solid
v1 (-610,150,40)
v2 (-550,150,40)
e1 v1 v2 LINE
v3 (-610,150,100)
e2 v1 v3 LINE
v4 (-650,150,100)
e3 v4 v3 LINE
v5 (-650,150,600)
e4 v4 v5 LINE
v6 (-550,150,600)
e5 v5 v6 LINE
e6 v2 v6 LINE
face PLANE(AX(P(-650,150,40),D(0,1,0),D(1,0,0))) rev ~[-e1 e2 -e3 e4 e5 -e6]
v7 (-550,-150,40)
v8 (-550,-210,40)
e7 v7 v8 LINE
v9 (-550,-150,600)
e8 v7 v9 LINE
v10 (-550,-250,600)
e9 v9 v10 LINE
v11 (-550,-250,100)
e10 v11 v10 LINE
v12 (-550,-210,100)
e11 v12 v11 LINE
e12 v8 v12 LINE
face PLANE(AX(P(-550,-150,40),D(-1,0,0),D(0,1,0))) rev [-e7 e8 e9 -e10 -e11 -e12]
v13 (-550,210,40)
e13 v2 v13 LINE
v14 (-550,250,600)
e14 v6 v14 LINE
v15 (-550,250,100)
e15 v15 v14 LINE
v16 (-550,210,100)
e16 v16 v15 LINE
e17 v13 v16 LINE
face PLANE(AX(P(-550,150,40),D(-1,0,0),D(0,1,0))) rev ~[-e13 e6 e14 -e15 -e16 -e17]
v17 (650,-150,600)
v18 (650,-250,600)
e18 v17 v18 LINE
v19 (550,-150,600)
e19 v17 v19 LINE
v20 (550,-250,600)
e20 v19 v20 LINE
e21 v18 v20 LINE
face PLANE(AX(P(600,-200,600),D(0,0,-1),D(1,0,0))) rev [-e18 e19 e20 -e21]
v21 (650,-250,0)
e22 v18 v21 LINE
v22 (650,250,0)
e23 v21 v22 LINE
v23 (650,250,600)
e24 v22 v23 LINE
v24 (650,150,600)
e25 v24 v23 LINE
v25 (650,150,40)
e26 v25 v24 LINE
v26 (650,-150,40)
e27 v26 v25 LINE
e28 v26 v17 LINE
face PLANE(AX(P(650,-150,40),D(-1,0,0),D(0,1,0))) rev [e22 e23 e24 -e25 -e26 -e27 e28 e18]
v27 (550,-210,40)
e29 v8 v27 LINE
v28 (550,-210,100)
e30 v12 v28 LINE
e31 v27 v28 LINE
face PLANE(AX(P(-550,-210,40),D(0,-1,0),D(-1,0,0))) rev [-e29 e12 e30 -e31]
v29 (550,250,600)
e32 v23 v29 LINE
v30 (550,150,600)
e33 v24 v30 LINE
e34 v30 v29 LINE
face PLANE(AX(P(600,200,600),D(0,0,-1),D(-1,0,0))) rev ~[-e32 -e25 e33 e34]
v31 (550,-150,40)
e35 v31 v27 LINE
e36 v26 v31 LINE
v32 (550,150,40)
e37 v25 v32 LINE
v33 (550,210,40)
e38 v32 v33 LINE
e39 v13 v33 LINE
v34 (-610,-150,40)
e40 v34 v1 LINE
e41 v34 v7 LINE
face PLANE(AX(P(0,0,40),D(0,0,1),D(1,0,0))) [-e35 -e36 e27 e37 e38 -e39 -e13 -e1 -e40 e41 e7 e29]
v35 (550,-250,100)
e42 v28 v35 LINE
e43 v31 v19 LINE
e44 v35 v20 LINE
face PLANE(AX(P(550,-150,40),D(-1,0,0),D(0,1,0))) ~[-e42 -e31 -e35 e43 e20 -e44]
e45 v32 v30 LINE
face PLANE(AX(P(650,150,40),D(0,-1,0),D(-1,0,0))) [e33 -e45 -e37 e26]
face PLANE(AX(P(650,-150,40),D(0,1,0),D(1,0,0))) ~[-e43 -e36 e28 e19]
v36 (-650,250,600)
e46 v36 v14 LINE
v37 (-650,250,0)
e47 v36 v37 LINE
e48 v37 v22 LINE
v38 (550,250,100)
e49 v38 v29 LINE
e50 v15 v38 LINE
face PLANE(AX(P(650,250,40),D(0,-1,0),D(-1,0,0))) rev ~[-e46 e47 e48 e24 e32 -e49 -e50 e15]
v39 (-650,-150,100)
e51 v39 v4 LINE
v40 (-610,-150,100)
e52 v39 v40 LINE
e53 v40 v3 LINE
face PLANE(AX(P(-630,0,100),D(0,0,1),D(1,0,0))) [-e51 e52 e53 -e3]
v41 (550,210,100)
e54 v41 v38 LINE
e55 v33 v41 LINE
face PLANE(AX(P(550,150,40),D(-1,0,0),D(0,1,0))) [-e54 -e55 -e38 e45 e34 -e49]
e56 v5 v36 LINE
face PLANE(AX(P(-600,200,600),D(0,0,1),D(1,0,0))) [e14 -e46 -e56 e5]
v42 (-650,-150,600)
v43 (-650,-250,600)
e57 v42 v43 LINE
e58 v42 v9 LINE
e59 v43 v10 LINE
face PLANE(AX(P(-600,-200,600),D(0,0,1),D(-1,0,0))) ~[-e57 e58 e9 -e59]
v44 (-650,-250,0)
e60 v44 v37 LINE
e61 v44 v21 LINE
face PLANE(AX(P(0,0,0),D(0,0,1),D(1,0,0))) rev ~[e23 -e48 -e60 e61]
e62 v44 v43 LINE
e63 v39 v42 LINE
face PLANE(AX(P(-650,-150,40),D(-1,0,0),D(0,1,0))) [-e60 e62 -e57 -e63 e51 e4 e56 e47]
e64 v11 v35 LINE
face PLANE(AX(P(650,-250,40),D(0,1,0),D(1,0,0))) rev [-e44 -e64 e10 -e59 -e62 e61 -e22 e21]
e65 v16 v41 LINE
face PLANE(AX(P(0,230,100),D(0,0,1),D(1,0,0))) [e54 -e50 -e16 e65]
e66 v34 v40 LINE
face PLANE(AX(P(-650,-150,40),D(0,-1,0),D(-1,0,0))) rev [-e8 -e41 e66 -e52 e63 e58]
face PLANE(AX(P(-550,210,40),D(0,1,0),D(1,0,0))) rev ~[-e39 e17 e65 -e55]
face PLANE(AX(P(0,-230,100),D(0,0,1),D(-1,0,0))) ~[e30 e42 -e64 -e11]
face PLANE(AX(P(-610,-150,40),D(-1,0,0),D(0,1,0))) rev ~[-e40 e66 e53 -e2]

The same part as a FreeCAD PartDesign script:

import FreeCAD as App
import Part
import Sketcher

V = App.Vector
Q = App.Units.Quantity

doc = App.newDocument("Part")
body = doc.addObject("PartDesign::Body", "Body")

# Sketch on XY plane
sketch1 = doc.addObject("Sketcher::SketchObject", "Sketch")
body.addObject(sketch1)
sketch1.AttachmentSupport = (doc.XY_Plane, [""])
sketch1.MapMode = "FlatFace"
sketch1.addGeometry(Part.LineSegment(V(-650, 250, 0), V(-650, -250, 0)), False)
sketch1.addGeometry(Part.LineSegment(V(-650, -250, 0), V(650, -250, 0)), False)
sketch1.addGeometry(Part.LineSegment(V(650, -250, 0), V(650, 250, 0)), False)
sketch1.addGeometry(Part.LineSegment(V(650, 250, 0), V(-650, 250, 0)), False)
sketch1.addConstraint(Sketcher.Constraint("Coincident", 0, 2, 1, 1))
sketch1.addConstraint(Sketcher.Constraint("Coincident", 1, 2, 2, 1))
sketch1.addConstraint(Sketcher.Constraint("Coincident", 2, 2, 3, 1))
sketch1.addConstraint(Sketcher.Constraint("Coincident", 3, 2, 0, 1))
sketch1.addConstraint(Sketcher.Constraint("Vertical", 0))
sketch1.addConstraint(Sketcher.Constraint("Horizontal", 1))
sketch1.addConstraint(Sketcher.Constraint("Vertical", 2))
sketch1.addConstraint(Sketcher.Constraint("Horizontal", 3))
sketch1.addConstraint(Sketcher.Constraint("Symmetric", 0, 2, 2, 2, -1, 1))
sketch1.addConstraint(Sketcher.Constraint("DistanceX", 1, 1, 1, 2, Q("1300 mm")))
sketch1.addConstraint(Sketcher.Constraint("DistanceY", 0, 2, 0, 1, Q("500 mm")))
pad1 = doc.addObject("PartDesign::Pad", "Pad")
body.addObject(pad1)
pad1.Profile = sketch1
pad1.Length = 40

# Sketch on XY plane
sketch2 = doc.addObject("Sketcher::SketchObject", "Sketch001")
body.addObject(sketch2)
sketch2.AttachmentSupport = (doc.XY_Plane, [""])
sketch2.MapMode = "FlatFace"
sketch2.AttachmentOffset = App.Placement(V(0, 0, 40), App.Rotation())
sketch2.addGeometry(Part.LineSegment(V(-650, 250, 0), V(-650, 150, 0)), False)
sketch2.addGeometry(Part.LineSegment(V(-650, 150, 0), V(-550, 150, 0)), False)
sketch2.addGeometry(Part.LineSegment(V(-550, 150, 0), V(-550, 250, 0)), False)
sketch2.addGeometry(Part.LineSegment(V(-550, 250, 0), V(-650, 250, 0)), False)
sketch2.addConstraint(Sketcher.Constraint("Coincident", 0, 2, 1, 1))
sketch2.addConstraint(Sketcher.Constraint("Coincident", 1, 2, 2, 1))
sketch2.addConstraint(Sketcher.Constraint("Coincident", 2, 2, 3, 1))
sketch2.addConstraint(Sketcher.Constraint("Coincident", 3, 2, 0, 1))
sketch2.addConstraint(Sketcher.Constraint("Vertical", 0))
sketch2.addConstraint(Sketcher.Constraint("Horizontal", 1))
sketch2.addConstraint(Sketcher.Constraint("Vertical", 2))
sketch2.addConstraint(Sketcher.Constraint("Horizontal", 3))
sketch2.addConstraint(Sketcher.Constraint("Equal", 3, 0))
sketch2.addConstraint(Sketcher.Constraint("DistanceX", 1, 1, 1, 2, Q("100 mm")))
sketch2.addConstraint(Sketcher.Constraint("DistanceX", 0, 2, -1, 1, Q("650 mm")))
sketch2.addConstraint(Sketcher.Constraint("DistanceY", -1, 1, 0, 2, Q("150 mm")))
pad2 = doc.addObject("PartDesign::Pad", "Pad001")
body.addObject(pad2)
pad2.Profile = sketch2
pad2.Length = 560

# Sketch on XY plane
sketch3 = doc.addObject("Sketcher::SketchObject", "Sketch002")
body.addObject(sketch3)
sketch3.AttachmentSupport = (doc.XY_Plane, [""])
sketch3.MapMode = "FlatFace"
sketch3.AttachmentOffset = App.Placement(V(0, 0, 40), App.Rotation())
sketch3.addGeometry(Part.LineSegment(V(650, 250, 0), V(650, 150, 0)), False)
sketch3.addGeometry(Part.LineSegment(V(650, 150, 0), V(550, 150, 0)), False)
sketch3.addGeometry(Part.LineSegment(V(550, 150, 0), V(550, 250, 0)), False)
sketch3.addGeometry(Part.LineSegment(V(550, 250, 0), V(650, 250, 0)), False)
sketch3.addConstraint(Sketcher.Constraint("Coincident", 0, 2, 1, 1))
sketch3.addConstraint(Sketcher.Constraint("Coincident", 1, 2, 2, 1))
sketch3.addConstraint(Sketcher.Constraint("Coincident", 2, 2, 3, 1))
sketch3.addConstraint(Sketcher.Constraint("Coincident", 3, 2, 0, 1))
sketch3.addConstraint(Sketcher.Constraint("Vertical", 0))
sketch3.addConstraint(Sketcher.Constraint("Horizontal", 1))
sketch3.addConstraint(Sketcher.Constraint("Vertical", 2))
sketch3.addConstraint(Sketcher.Constraint("Horizontal", 3))
sketch3.addConstraint(Sketcher.Constraint("Equal", 3, 0))
sketch3.addConstraint(Sketcher.Constraint("DistanceX", 1, 2, 1, 1, Q("100 mm")))
sketch3.addConstraint(Sketcher.Constraint("DistanceX", -1, 1, 0, 2, Q("650 mm")))
sketch3.addConstraint(Sketcher.Constraint("DistanceY", -1, 1, 0, 2, Q("150 mm")))
pad3 = doc.addObject("PartDesign::Pad", "Pad002")
body.addObject(pad3)
pad3.Profile = sketch3
pad3.Length = 560
doc.recompute()

mirrored = doc.addObject("PartDesign::Mirrored", "Mirrored")
body.addObject(mirrored)
mirrored.Originals = [pad2, pad3]
mirrored.MirrorPlane = (doc.XZ_Plane, [""])
body.Tip = mirrored

# Sketch on XY plane
sketch4 = doc.addObject("Sketcher::SketchObject", "Sketch003")
body.addObject(sketch4)
sketch4.AttachmentSupport = (doc.XY_Plane, [""])
sketch4.MapMode = "FlatFace"
sketch4.AttachmentOffset = App.Placement(V(0, 0, 40), App.Rotation())
sketch4.addGeometry(Part.LineSegment(V(-550, 250, 0), V(-550, 210, 0)), False)
sketch4.addGeometry(Part.LineSegment(V(-550, 210, 0), V(550, 210, 0)), False)
sketch4.addGeometry(Part.LineSegment(V(550, 210, 0), V(550, 250, 0)), False)
sketch4.addGeometry(Part.LineSegment(V(550, 250, 0), V(-550, 250, 0)), False)
sketch4.addConstraint(Sketcher.Constraint("Coincident", 0, 2, 1, 1))
sketch4.addConstraint(Sketcher.Constraint("Coincident", 1, 2, 2, 1))
sketch4.addConstraint(Sketcher.Constraint("Coincident", 2, 2, 3, 1))
sketch4.addConstraint(Sketcher.Constraint("Coincident", 3, 2, 0, 1))
sketch4.addConstraint(Sketcher.Constraint("Vertical", 0))
sketch4.addConstraint(Sketcher.Constraint("Horizontal", 1))
sketch4.addConstraint(Sketcher.Constraint("Vertical", 2))
sketch4.addConstraint(Sketcher.Constraint("Horizontal", 3))
sketch4.addConstraint(Sketcher.Constraint("DistanceX", 1, 1, 1, 2, Q("1100 mm")))
sketch4.addConstraint(Sketcher.Constraint("DistanceY", 0, 2, 0, 1, Q("40 mm")))
sketch4.addConstraint(Sketcher.Constraint("DistanceX", 0, 2, -1, 1, Q("550 mm")))
sketch4.addConstraint(Sketcher.Constraint("DistanceY", -1, 1, 0, 2, Q("210 mm")))
pad4 = doc.addObject("PartDesign::Pad", "Pad003")
body.addObject(pad4)
pad4.Profile = sketch4
pad4.Length = 60

# Sketch on XY plane
sketch5 = doc.addObject("Sketcher::SketchObject", "Sketch004")
body.addObject(sketch5)
sketch5.AttachmentSupport = (doc.XY_Plane, [""])
sketch5.MapMode = "FlatFace"
sketch5.AttachmentOffset = App.Placement(V(0, 0, 40), App.Rotation())
sketch5.addGeometry(Part.LineSegment(V(-650, 150, 0), V(-650, -150, 0)), False)
sketch5.addGeometry(Part.LineSegment(V(-650, -150, 0), V(-610, -150, 0)), False)
sketch5.addGeometry(Part.LineSegment(V(-610, -150, 0), V(-610, 150, 0)), False)
sketch5.addGeometry(Part.LineSegment(V(-610, 150, 0), V(-650, 150, 0)), False)
sketch5.addConstraint(Sketcher.Constraint("Coincident", 0, 2, 1, 1))
sketch5.addConstraint(Sketcher.Constraint("Coincident", 1, 2, 2, 1))
sketch5.addConstraint(Sketcher.Constraint("Coincident", 2, 2, 3, 1))
sketch5.addConstraint(Sketcher.Constraint("Coincident", 3, 2, 0, 1))
sketch5.addConstraint(Sketcher.Constraint("Vertical", 0))
sketch5.addConstraint(Sketcher.Constraint("Horizontal", 1))
sketch5.addConstraint(Sketcher.Constraint("Vertical", 2))
sketch5.addConstraint(Sketcher.Constraint("Horizontal", 3))
sketch5.addConstraint(Sketcher.Constraint("DistanceX", 1, 1, 1, 2, Q("40 mm")))
sketch5.addConstraint(Sketcher.Constraint("DistanceY", 0, 2, 0, 1, Q("300 mm")))
sketch5.addConstraint(Sketcher.Constraint("DistanceX", 0, 2, -1, 1, Q("650 mm")))
sketch5.addConstraint(Sketcher.Constraint("DistanceY", 0, 2, -1, 1, Q("150 mm")))
pad5 = doc.addObject("PartDesign::Pad", "Pad004")
body.addObject(pad5)
pad5.Profile = sketch5
pad5.Length = 60
doc.recompute()

mirrored2 = doc.addObject("PartDesign::Mirrored", "Mirrored001")
body.addObject(mirrored2)
mirrored2.Originals = [pad4]
mirrored2.MirrorPlane = (doc.XZ_Plane, [""])
body.Tip = mirrored2

doc.recompute()
